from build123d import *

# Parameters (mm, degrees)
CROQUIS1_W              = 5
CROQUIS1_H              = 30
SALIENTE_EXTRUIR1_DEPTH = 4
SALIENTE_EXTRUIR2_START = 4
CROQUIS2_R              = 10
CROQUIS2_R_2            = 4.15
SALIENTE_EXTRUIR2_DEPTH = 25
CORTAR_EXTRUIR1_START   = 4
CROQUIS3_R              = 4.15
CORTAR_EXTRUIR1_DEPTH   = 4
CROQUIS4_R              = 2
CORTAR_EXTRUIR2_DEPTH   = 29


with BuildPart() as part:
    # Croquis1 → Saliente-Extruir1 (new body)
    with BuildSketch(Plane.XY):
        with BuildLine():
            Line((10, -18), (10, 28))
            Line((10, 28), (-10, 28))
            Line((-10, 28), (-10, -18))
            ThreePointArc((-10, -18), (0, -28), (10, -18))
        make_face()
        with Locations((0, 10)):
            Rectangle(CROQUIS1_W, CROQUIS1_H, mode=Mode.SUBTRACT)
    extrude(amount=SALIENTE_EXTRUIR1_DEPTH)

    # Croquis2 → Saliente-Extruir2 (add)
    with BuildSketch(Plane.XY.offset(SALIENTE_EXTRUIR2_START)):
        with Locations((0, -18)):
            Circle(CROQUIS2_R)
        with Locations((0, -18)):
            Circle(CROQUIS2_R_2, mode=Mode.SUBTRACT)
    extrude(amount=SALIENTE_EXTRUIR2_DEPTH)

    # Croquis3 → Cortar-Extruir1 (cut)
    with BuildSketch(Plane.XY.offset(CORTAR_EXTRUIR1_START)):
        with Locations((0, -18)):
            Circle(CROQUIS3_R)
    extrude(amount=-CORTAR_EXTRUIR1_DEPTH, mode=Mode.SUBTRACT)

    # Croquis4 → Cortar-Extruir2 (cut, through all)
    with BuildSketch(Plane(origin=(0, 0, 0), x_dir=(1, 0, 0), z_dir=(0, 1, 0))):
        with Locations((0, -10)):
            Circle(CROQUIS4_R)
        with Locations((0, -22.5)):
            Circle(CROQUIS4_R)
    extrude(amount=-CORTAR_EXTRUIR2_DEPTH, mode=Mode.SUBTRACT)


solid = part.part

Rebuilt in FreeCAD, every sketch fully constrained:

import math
import FreeCAD as App
import Part
import Sketcher
Q = App.Units.Quantity


def add_polygon(sketch, points):
    """Adds a closed chain of lines whose ends are joined by coincident constraints."""
    first, n = sketch.GeometryCount, len(points)
    for a, b in zip(points, points[1:] + points[:1]):
        sketch.addGeometry(Part.LineSegment(App.Vector(*a, 0), App.Vector(*b, 0)), False)
    for i in range(n):
        sketch.addConstraint(Sketcher.Constraint("Coincident", first + i, 2, first + (i + 1) % n, 1))

doc = App.newDocument("Part")
params = doc.addObject("Spreadsheet::Sheet", "Params")
for row, (alias, value) in enumerate([
    ("sketch1_radius", "10 mm"),
    ("sketch1_width", "5 mm"),
    ("sketch1_height", "46 mm"),
    ("sketch1_height2", "30 mm"),
    ("pad1_length", "4 mm"),
    ("sketch2_diameter", "20 mm"),
    ("sketch2_diameter2", "8.3 mm"),
    ("pad2_length", "25 mm"),
    ("sketch3_diameter", "8.3 mm"),
    ("pocket1_length", "4 mm"),
    ("sketch4_diameter", "4 mm"),
], start=1):
    params.set(f"A{row}", alias)
    params.set(f"B{row}", "=" + value)
    params.setAlias(f"B{row}", alias)

body = doc.addObject("PartDesign::Body", "Body")

sketch1 = body.newObject("Sketcher::SketchObject", "Sketch")
sketch1.AttachmentSupport = (doc.getObject("XY_Plane"), [""])
sketch1.MapMode = "FlatFace"
sketch1.addGeometry(Part.LineSegment(App.Vector(10, -18, 0), App.Vector(10, 28, 0)), False)
sketch1.addGeometry(Part.LineSegment(App.Vector(10, 28, 0), App.Vector(-10, 28, 0)), False)
sketch1.addGeometry(Part.LineSegment(App.Vector(-10, 28, 0), App.Vector(-10, -18, 0)), False)
sketch1.addGeometry(Part.ArcOfCircle(Part.Circle(App.Vector(0, -18, 0), App.Vector(0, 0, 1), 10), math.radians(180), math.radians(360)), False)
add_polygon(sketch1, [(2, -5), (-2, -5), (-2, 25), (2, 25)])
sketch1.addConstraint(Sketcher.Constraint("Coincident", 0, 2, 1, 1))
sketch1.addConstraint(Sketcher.Constraint("Coincident", 1, 2, 2, 1))
sketch1.addConstraint(Sketcher.Constraint("Tangent", 2, 2, 3, 1))
sketch1.addConstraint(Sketcher.Constraint("Tangent", 3, 2, 0, 1))
sketch1.addConstraint(Sketcher.Constraint("Vertical", 0))
sketch1.addConstraint(Sketcher.Constraint("Horizontal", 1))
sketch1.addConstraint(Sketcher.Constraint("Vertical", 2))
sketch1.addConstraint(Sketcher.Constraint("Horizontal", 4))
sketch1.addConstraint(Sketcher.Constraint("Vertical", 5))
sketch1.addConstraint(Sketcher.Constraint("Horizontal", 6))
sketch1.addConstraint(Sketcher.Constraint("Vertical", 7))
sketch1.addConstraint(Sketcher.Constraint("PointOnObject", 3, 3, -2))
sketch1.addConstraint(Sketcher.Constraint("Radius", 3, Q("10 mm")))
sketch1.addConstraint(Sketcher.Constraint("DistanceX", 4, 2, 4, 1, Q("5 mm")))
sketch1.addConstraint(Sketcher.Constraint("DistanceY", 0, 1, 0, 2, Q("46 mm")))
sketch1.addConstraint(Sketcher.Constraint("DistanceY", 5, 1, 5, 2, Q("30 mm")))
sketch1.addConstraint(Sketcher.Constraint("DistanceY", 3, 3, -1, 1, Q("18 mm")))
sketch1.addConstraint(Sketcher.Constraint("DistanceY", 4, 2, -1, 1, Q("5 mm")))
sketch1.addConstraint(Sketcher.Constraint("DistanceX", 4, 2, -1, 1, Q("2.5 mm")))
sketch1.setExpression("Constraints[16]", "Params.sketch1_radius")
sketch1.setExpression("Constraints[17]", "Params.sketch1_width")
sketch1.setExpression("Constraints[18]", "Params.sketch1_height")
sketch1.setExpression("Constraints[19]", "Params.sketch1_height2")
pad1 = body.newObject("PartDesign::Pad", "Pad")
pad1.Profile = sketch1
pad1.setExpression("Length", "Params.pad1_length")

sketch2 = body.newObject("Sketcher::SketchObject", "Sketch001")
sketch2.AttachmentSupport = (doc.getObject("XY_Plane"), [""])
sketch2.MapMode = "FlatFace"
sketch2.AttachmentOffset = App.Placement(App.Vector(0, 0, 4), App.Rotation())
sketch2.addGeometry(Part.Circle(App.Vector(0, -18, 0), App.Vector(0, 0, 1), 10), False)
sketch2.addGeometry(Part.Circle(App.Vector(0, -18, 0), App.Vector(0, 0, 1), 4.2), False)
sketch2.addConstraint(Sketcher.Constraint("Coincident", 1, 3, 0, 3))
sketch2.addConstraint(Sketcher.Constraint("PointOnObject", 0, 3, -2))
sketch2.addConstraint(Sketcher.Constraint("Diameter", 0, Q("20 mm")))
sketch2.addConstraint(Sketcher.Constraint("Diameter", 1, Q("8.3 mm")))
sketch2.addConstraint(Sketcher.Constraint("DistanceY", 0, 3, -1, 1, Q("18 mm")))
sketch2.setExpression("Constraints[2]", "Params.sketch2_diameter")
sketch2.setExpression("Constraints[3]", "Params.sketch2_diameter2")
pad2 = body.newObject("PartDesign::Pad", "Pad001")
pad2.Profile = sketch2
pad2.setExpression("Length", "Params.pad2_length")

sketch3 = body.newObject("Sketcher::SketchObject", "Sketch002")
sketch3.AttachmentSupport = (doc.getObject("XY_Plane"), [""])
sketch3.MapMode = "FlatFace"
sketch3.AttachmentOffset = App.Placement(App.Vector(0, 0, 4), App.Rotation())
sketch3.addGeometry(Part.Circle(App.Vector(0, -18, 0), App.Vector(0, 0, 1), 4.2), False)
sketch3.addConstraint(Sketcher.Constraint("PointOnObject", 0, 3, -2))
sketch3.addConstraint(Sketcher.Constraint("Diameter", 0, Q("8.3 mm")))
sketch3.addConstraint(Sketcher.Constraint("DistanceY", 0, 3, -1, 1, Q("18 mm")))
sketch3.setExpression("Constraints[1]", "Params.sketch3_diameter")
pocket1 = body.newObject("PartDesign::Pocket", "Pocket")
pocket1.Profile = sketch3
pocket1.setExpression("Length", "Params.pocket1_length")

sketch4 = body.newObject("Sketcher::SketchObject", "Sketch003")
sketch4.AttachmentSupport = (doc.getObject("XZ_Plane"), [""])
sketch4.MapMode = "FlatFace"
sketch4.addGeometry(Part.Circle(App.Vector(0, 10, 0), App.Vector(0, 0, 1), 2), False)
sketch4.addGeometry(Part.Circle(App.Vector(0, 22.5, 0), App.Vector(0, 0, 1), 2), False)
sketch4.addConstraint(Sketcher.Constraint("Equal", 0, 1))
sketch4.addConstraint(Sketcher.Constraint("PointOnObject", 0, 3, -2))
sketch4.addConstraint(Sketcher.Constraint("PointOnObject", 1, 3, -2))
sketch4.addConstraint(Sketcher.Constraint("Diameter", 0, Q("4 mm")))
sketch4.addConstraint(Sketcher.Constraint("DistanceY", -1, 1, 0, 3, Q("10 mm")))
sketch4.addConstraint(Sketcher.Constraint("DistanceY", -1, 1, 1, 3, Q("22.5 mm")))
sketch4.setExpression("Constraints[3]", "Params.sketch4_diameter")
pocket2 = body.newObject("PartDesign::Pocket", "Pocket001")
pocket2.Profile = sketch4
pocket2.Type = "ThroughAll"
pocket2.Reversed = True

doc.recompute()
